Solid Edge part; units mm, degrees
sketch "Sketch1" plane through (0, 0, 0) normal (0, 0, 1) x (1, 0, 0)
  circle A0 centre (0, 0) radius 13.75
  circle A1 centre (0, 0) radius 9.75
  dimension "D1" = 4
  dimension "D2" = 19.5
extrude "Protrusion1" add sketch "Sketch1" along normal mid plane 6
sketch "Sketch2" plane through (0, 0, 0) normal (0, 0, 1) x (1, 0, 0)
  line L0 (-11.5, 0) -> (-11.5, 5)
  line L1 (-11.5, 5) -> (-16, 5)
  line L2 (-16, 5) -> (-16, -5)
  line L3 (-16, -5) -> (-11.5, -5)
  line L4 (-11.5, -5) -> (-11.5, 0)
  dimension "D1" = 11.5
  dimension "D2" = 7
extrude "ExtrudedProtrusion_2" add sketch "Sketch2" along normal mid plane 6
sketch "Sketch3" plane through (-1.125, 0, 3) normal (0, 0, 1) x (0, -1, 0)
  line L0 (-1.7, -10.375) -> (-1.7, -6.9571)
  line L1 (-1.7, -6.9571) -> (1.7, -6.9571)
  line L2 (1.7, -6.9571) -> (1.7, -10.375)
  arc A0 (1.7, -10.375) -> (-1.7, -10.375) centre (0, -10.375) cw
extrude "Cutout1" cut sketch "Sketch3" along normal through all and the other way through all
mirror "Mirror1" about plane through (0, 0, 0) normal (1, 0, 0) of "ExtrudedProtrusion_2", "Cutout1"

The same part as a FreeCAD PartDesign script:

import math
import FreeCAD as App
import Part
import Sketcher

V = App.Vector


def add_polygon(sketch, points):
    """Adds a closed chain of lines whose ends are joined by coincident constraints."""
    first, n = sketch.GeometryCount, len(points)
    for a, b in zip(points, points[1:] + points[:1]):
        sketch.addGeometry(Part.LineSegment(App.Vector(*a, 0), App.Vector(*b, 0)), False)
    for i in range(n):
        sketch.addConstraint(Sketcher.Constraint("Coincident", first + i, 2, first + (i + 1) % n, 1))

doc = App.newDocument("Part")
body = doc.addObject("PartDesign::Body", "Body")

sketch1 = doc.addObject("Sketcher::SketchObject", "Sketch")
body.addObject(sketch1)
sketch1.AttachmentSupport = (doc.XY_Plane, [""])
sketch1.MapMode = "FlatFace"
sketch1.addGeometry([
    Part.Circle(V(0, 0, 0), V(0, 0, 1), 14),
    Part.Circle(V(0, 0, 0), V(0, 0, 1), 10),
], False)
sketch1.addConstraint([
    Sketcher.Constraint("Coincident", 0, 3, -1, 1),
    Sketcher.Constraint("Coincident", 1, 3, -1, 1),
    Sketcher.Constraint("Diameter", 0, 27.5),
    Sketcher.Constraint("Diameter", 1, 19.5),
])
pad1 = doc.addObject("PartDesign::Pad", "Pad")
body.addObject(pad1)
pad1.Profile = sketch1
pad1.Length = 6
pad1.Midplane = True

sketch2 = doc.addObject("Sketcher::SketchObject", "Sketch001")
body.addObject(sketch2)
sketch2.AttachmentSupport = (doc.XY_Plane, [""])
sketch2.MapMode = "FlatFace"
add_polygon(sketch2, [(-11.5, -5), (-11.5, 5), (-16, 5), (-16, -5)])
sketch2.addConstraint([
    Sketcher.Constraint("Vertical", 0),
    Sketcher.Constraint("Horizontal", 1),
    Sketcher.Constraint("Vertical", 2),
    Sketcher.Constraint("Horizontal", 3),
    Sketcher.Constraint("DistanceY", 0, 1, 0, 2, 10.0),
    Sketcher.Constraint("DistanceX", 1, 2, 1, 1, 4.5),
    Sketcher.Constraint("DistanceY", -1, 1, 0, 2, 5.0),
    Sketcher.Constraint("DistanceX", 1, 2, -1, 1, 16.0),
])
pad2 = doc.addObject("PartDesign::Pad", "Pad001")
body.addObject(pad2)
pad2.Profile = sketch2
pad2.Length = 6
pad2.Midplane = True

sketch3 = doc.addObject("Sketcher::SketchObject", "Sketch002")
body.addObject(sketch3)
sketch3.AttachmentSupport = (doc.XY_Plane, [""])
sketch3.MapMode = "FlatFace"
sketch3.AttachmentOffset = App.Placement(V(0, 0, 3), App.Rotation())
sketch3.addGeometry([
    Part.LineSegment(V(-8.1, 1.7, 0), V(-11.5, 1.7, 0)),
    Part.ArcOfCircle(Part.Circle(V(-11.5, 0, 0), V(0, 0, 1), 1.7), math.radians(90), math.radians(270)),
    Part.LineSegment(V(-11.5, -1.7, 0), V(-8.1, -1.7, 0)),
    Part.LineSegment(V(-8.1, -1.7, 0), V(-8.1, 1.7, 0)),
], False)
sketch3.addConstraint([
    Sketcher.Constraint("Tangent", 0, 2, 1, 1),
    Sketcher.Constraint("Tangent", 1, 2, 2, 1),
    Sketcher.Constraint("Coincident", 2, 2, 3, 1),
    Sketcher.Constraint("Coincident", 3, 2, 0, 1),
    Sketcher.Constraint("Horizontal", 0),
    Sketcher.Constraint("Horizontal", 2),
    Sketcher.Constraint("Vertical", 3),
    Sketcher.Constraint("PointOnObject", 1, 3, -1),
    Sketcher.Constraint("Radius", 1, 1.7),
    Sketcher.Constraint("DistanceX", 1, 3, -1, 1, 11.5),
    Sketcher.Constraint("DistanceX", 0, 2, 0, 1, 3.418),
])
pocket1 = doc.addObject("PartDesign::Pocket", "Pocket")
body.addObject(pocket1)
pocket1.Profile = sketch3
pocket1.Type = "ThroughAll"
pocket1.Midplane = True
doc.recompute()

mirrored = doc.addObject("PartDesign::Mirrored", "Mirrored")
body.addObject(mirrored)
mirrored.Originals = [pad2, pocket1]
mirrored.MirrorPlane = (doc.YZ_Plane, [""])
body.Tip = mirrored

doc.recompute()
